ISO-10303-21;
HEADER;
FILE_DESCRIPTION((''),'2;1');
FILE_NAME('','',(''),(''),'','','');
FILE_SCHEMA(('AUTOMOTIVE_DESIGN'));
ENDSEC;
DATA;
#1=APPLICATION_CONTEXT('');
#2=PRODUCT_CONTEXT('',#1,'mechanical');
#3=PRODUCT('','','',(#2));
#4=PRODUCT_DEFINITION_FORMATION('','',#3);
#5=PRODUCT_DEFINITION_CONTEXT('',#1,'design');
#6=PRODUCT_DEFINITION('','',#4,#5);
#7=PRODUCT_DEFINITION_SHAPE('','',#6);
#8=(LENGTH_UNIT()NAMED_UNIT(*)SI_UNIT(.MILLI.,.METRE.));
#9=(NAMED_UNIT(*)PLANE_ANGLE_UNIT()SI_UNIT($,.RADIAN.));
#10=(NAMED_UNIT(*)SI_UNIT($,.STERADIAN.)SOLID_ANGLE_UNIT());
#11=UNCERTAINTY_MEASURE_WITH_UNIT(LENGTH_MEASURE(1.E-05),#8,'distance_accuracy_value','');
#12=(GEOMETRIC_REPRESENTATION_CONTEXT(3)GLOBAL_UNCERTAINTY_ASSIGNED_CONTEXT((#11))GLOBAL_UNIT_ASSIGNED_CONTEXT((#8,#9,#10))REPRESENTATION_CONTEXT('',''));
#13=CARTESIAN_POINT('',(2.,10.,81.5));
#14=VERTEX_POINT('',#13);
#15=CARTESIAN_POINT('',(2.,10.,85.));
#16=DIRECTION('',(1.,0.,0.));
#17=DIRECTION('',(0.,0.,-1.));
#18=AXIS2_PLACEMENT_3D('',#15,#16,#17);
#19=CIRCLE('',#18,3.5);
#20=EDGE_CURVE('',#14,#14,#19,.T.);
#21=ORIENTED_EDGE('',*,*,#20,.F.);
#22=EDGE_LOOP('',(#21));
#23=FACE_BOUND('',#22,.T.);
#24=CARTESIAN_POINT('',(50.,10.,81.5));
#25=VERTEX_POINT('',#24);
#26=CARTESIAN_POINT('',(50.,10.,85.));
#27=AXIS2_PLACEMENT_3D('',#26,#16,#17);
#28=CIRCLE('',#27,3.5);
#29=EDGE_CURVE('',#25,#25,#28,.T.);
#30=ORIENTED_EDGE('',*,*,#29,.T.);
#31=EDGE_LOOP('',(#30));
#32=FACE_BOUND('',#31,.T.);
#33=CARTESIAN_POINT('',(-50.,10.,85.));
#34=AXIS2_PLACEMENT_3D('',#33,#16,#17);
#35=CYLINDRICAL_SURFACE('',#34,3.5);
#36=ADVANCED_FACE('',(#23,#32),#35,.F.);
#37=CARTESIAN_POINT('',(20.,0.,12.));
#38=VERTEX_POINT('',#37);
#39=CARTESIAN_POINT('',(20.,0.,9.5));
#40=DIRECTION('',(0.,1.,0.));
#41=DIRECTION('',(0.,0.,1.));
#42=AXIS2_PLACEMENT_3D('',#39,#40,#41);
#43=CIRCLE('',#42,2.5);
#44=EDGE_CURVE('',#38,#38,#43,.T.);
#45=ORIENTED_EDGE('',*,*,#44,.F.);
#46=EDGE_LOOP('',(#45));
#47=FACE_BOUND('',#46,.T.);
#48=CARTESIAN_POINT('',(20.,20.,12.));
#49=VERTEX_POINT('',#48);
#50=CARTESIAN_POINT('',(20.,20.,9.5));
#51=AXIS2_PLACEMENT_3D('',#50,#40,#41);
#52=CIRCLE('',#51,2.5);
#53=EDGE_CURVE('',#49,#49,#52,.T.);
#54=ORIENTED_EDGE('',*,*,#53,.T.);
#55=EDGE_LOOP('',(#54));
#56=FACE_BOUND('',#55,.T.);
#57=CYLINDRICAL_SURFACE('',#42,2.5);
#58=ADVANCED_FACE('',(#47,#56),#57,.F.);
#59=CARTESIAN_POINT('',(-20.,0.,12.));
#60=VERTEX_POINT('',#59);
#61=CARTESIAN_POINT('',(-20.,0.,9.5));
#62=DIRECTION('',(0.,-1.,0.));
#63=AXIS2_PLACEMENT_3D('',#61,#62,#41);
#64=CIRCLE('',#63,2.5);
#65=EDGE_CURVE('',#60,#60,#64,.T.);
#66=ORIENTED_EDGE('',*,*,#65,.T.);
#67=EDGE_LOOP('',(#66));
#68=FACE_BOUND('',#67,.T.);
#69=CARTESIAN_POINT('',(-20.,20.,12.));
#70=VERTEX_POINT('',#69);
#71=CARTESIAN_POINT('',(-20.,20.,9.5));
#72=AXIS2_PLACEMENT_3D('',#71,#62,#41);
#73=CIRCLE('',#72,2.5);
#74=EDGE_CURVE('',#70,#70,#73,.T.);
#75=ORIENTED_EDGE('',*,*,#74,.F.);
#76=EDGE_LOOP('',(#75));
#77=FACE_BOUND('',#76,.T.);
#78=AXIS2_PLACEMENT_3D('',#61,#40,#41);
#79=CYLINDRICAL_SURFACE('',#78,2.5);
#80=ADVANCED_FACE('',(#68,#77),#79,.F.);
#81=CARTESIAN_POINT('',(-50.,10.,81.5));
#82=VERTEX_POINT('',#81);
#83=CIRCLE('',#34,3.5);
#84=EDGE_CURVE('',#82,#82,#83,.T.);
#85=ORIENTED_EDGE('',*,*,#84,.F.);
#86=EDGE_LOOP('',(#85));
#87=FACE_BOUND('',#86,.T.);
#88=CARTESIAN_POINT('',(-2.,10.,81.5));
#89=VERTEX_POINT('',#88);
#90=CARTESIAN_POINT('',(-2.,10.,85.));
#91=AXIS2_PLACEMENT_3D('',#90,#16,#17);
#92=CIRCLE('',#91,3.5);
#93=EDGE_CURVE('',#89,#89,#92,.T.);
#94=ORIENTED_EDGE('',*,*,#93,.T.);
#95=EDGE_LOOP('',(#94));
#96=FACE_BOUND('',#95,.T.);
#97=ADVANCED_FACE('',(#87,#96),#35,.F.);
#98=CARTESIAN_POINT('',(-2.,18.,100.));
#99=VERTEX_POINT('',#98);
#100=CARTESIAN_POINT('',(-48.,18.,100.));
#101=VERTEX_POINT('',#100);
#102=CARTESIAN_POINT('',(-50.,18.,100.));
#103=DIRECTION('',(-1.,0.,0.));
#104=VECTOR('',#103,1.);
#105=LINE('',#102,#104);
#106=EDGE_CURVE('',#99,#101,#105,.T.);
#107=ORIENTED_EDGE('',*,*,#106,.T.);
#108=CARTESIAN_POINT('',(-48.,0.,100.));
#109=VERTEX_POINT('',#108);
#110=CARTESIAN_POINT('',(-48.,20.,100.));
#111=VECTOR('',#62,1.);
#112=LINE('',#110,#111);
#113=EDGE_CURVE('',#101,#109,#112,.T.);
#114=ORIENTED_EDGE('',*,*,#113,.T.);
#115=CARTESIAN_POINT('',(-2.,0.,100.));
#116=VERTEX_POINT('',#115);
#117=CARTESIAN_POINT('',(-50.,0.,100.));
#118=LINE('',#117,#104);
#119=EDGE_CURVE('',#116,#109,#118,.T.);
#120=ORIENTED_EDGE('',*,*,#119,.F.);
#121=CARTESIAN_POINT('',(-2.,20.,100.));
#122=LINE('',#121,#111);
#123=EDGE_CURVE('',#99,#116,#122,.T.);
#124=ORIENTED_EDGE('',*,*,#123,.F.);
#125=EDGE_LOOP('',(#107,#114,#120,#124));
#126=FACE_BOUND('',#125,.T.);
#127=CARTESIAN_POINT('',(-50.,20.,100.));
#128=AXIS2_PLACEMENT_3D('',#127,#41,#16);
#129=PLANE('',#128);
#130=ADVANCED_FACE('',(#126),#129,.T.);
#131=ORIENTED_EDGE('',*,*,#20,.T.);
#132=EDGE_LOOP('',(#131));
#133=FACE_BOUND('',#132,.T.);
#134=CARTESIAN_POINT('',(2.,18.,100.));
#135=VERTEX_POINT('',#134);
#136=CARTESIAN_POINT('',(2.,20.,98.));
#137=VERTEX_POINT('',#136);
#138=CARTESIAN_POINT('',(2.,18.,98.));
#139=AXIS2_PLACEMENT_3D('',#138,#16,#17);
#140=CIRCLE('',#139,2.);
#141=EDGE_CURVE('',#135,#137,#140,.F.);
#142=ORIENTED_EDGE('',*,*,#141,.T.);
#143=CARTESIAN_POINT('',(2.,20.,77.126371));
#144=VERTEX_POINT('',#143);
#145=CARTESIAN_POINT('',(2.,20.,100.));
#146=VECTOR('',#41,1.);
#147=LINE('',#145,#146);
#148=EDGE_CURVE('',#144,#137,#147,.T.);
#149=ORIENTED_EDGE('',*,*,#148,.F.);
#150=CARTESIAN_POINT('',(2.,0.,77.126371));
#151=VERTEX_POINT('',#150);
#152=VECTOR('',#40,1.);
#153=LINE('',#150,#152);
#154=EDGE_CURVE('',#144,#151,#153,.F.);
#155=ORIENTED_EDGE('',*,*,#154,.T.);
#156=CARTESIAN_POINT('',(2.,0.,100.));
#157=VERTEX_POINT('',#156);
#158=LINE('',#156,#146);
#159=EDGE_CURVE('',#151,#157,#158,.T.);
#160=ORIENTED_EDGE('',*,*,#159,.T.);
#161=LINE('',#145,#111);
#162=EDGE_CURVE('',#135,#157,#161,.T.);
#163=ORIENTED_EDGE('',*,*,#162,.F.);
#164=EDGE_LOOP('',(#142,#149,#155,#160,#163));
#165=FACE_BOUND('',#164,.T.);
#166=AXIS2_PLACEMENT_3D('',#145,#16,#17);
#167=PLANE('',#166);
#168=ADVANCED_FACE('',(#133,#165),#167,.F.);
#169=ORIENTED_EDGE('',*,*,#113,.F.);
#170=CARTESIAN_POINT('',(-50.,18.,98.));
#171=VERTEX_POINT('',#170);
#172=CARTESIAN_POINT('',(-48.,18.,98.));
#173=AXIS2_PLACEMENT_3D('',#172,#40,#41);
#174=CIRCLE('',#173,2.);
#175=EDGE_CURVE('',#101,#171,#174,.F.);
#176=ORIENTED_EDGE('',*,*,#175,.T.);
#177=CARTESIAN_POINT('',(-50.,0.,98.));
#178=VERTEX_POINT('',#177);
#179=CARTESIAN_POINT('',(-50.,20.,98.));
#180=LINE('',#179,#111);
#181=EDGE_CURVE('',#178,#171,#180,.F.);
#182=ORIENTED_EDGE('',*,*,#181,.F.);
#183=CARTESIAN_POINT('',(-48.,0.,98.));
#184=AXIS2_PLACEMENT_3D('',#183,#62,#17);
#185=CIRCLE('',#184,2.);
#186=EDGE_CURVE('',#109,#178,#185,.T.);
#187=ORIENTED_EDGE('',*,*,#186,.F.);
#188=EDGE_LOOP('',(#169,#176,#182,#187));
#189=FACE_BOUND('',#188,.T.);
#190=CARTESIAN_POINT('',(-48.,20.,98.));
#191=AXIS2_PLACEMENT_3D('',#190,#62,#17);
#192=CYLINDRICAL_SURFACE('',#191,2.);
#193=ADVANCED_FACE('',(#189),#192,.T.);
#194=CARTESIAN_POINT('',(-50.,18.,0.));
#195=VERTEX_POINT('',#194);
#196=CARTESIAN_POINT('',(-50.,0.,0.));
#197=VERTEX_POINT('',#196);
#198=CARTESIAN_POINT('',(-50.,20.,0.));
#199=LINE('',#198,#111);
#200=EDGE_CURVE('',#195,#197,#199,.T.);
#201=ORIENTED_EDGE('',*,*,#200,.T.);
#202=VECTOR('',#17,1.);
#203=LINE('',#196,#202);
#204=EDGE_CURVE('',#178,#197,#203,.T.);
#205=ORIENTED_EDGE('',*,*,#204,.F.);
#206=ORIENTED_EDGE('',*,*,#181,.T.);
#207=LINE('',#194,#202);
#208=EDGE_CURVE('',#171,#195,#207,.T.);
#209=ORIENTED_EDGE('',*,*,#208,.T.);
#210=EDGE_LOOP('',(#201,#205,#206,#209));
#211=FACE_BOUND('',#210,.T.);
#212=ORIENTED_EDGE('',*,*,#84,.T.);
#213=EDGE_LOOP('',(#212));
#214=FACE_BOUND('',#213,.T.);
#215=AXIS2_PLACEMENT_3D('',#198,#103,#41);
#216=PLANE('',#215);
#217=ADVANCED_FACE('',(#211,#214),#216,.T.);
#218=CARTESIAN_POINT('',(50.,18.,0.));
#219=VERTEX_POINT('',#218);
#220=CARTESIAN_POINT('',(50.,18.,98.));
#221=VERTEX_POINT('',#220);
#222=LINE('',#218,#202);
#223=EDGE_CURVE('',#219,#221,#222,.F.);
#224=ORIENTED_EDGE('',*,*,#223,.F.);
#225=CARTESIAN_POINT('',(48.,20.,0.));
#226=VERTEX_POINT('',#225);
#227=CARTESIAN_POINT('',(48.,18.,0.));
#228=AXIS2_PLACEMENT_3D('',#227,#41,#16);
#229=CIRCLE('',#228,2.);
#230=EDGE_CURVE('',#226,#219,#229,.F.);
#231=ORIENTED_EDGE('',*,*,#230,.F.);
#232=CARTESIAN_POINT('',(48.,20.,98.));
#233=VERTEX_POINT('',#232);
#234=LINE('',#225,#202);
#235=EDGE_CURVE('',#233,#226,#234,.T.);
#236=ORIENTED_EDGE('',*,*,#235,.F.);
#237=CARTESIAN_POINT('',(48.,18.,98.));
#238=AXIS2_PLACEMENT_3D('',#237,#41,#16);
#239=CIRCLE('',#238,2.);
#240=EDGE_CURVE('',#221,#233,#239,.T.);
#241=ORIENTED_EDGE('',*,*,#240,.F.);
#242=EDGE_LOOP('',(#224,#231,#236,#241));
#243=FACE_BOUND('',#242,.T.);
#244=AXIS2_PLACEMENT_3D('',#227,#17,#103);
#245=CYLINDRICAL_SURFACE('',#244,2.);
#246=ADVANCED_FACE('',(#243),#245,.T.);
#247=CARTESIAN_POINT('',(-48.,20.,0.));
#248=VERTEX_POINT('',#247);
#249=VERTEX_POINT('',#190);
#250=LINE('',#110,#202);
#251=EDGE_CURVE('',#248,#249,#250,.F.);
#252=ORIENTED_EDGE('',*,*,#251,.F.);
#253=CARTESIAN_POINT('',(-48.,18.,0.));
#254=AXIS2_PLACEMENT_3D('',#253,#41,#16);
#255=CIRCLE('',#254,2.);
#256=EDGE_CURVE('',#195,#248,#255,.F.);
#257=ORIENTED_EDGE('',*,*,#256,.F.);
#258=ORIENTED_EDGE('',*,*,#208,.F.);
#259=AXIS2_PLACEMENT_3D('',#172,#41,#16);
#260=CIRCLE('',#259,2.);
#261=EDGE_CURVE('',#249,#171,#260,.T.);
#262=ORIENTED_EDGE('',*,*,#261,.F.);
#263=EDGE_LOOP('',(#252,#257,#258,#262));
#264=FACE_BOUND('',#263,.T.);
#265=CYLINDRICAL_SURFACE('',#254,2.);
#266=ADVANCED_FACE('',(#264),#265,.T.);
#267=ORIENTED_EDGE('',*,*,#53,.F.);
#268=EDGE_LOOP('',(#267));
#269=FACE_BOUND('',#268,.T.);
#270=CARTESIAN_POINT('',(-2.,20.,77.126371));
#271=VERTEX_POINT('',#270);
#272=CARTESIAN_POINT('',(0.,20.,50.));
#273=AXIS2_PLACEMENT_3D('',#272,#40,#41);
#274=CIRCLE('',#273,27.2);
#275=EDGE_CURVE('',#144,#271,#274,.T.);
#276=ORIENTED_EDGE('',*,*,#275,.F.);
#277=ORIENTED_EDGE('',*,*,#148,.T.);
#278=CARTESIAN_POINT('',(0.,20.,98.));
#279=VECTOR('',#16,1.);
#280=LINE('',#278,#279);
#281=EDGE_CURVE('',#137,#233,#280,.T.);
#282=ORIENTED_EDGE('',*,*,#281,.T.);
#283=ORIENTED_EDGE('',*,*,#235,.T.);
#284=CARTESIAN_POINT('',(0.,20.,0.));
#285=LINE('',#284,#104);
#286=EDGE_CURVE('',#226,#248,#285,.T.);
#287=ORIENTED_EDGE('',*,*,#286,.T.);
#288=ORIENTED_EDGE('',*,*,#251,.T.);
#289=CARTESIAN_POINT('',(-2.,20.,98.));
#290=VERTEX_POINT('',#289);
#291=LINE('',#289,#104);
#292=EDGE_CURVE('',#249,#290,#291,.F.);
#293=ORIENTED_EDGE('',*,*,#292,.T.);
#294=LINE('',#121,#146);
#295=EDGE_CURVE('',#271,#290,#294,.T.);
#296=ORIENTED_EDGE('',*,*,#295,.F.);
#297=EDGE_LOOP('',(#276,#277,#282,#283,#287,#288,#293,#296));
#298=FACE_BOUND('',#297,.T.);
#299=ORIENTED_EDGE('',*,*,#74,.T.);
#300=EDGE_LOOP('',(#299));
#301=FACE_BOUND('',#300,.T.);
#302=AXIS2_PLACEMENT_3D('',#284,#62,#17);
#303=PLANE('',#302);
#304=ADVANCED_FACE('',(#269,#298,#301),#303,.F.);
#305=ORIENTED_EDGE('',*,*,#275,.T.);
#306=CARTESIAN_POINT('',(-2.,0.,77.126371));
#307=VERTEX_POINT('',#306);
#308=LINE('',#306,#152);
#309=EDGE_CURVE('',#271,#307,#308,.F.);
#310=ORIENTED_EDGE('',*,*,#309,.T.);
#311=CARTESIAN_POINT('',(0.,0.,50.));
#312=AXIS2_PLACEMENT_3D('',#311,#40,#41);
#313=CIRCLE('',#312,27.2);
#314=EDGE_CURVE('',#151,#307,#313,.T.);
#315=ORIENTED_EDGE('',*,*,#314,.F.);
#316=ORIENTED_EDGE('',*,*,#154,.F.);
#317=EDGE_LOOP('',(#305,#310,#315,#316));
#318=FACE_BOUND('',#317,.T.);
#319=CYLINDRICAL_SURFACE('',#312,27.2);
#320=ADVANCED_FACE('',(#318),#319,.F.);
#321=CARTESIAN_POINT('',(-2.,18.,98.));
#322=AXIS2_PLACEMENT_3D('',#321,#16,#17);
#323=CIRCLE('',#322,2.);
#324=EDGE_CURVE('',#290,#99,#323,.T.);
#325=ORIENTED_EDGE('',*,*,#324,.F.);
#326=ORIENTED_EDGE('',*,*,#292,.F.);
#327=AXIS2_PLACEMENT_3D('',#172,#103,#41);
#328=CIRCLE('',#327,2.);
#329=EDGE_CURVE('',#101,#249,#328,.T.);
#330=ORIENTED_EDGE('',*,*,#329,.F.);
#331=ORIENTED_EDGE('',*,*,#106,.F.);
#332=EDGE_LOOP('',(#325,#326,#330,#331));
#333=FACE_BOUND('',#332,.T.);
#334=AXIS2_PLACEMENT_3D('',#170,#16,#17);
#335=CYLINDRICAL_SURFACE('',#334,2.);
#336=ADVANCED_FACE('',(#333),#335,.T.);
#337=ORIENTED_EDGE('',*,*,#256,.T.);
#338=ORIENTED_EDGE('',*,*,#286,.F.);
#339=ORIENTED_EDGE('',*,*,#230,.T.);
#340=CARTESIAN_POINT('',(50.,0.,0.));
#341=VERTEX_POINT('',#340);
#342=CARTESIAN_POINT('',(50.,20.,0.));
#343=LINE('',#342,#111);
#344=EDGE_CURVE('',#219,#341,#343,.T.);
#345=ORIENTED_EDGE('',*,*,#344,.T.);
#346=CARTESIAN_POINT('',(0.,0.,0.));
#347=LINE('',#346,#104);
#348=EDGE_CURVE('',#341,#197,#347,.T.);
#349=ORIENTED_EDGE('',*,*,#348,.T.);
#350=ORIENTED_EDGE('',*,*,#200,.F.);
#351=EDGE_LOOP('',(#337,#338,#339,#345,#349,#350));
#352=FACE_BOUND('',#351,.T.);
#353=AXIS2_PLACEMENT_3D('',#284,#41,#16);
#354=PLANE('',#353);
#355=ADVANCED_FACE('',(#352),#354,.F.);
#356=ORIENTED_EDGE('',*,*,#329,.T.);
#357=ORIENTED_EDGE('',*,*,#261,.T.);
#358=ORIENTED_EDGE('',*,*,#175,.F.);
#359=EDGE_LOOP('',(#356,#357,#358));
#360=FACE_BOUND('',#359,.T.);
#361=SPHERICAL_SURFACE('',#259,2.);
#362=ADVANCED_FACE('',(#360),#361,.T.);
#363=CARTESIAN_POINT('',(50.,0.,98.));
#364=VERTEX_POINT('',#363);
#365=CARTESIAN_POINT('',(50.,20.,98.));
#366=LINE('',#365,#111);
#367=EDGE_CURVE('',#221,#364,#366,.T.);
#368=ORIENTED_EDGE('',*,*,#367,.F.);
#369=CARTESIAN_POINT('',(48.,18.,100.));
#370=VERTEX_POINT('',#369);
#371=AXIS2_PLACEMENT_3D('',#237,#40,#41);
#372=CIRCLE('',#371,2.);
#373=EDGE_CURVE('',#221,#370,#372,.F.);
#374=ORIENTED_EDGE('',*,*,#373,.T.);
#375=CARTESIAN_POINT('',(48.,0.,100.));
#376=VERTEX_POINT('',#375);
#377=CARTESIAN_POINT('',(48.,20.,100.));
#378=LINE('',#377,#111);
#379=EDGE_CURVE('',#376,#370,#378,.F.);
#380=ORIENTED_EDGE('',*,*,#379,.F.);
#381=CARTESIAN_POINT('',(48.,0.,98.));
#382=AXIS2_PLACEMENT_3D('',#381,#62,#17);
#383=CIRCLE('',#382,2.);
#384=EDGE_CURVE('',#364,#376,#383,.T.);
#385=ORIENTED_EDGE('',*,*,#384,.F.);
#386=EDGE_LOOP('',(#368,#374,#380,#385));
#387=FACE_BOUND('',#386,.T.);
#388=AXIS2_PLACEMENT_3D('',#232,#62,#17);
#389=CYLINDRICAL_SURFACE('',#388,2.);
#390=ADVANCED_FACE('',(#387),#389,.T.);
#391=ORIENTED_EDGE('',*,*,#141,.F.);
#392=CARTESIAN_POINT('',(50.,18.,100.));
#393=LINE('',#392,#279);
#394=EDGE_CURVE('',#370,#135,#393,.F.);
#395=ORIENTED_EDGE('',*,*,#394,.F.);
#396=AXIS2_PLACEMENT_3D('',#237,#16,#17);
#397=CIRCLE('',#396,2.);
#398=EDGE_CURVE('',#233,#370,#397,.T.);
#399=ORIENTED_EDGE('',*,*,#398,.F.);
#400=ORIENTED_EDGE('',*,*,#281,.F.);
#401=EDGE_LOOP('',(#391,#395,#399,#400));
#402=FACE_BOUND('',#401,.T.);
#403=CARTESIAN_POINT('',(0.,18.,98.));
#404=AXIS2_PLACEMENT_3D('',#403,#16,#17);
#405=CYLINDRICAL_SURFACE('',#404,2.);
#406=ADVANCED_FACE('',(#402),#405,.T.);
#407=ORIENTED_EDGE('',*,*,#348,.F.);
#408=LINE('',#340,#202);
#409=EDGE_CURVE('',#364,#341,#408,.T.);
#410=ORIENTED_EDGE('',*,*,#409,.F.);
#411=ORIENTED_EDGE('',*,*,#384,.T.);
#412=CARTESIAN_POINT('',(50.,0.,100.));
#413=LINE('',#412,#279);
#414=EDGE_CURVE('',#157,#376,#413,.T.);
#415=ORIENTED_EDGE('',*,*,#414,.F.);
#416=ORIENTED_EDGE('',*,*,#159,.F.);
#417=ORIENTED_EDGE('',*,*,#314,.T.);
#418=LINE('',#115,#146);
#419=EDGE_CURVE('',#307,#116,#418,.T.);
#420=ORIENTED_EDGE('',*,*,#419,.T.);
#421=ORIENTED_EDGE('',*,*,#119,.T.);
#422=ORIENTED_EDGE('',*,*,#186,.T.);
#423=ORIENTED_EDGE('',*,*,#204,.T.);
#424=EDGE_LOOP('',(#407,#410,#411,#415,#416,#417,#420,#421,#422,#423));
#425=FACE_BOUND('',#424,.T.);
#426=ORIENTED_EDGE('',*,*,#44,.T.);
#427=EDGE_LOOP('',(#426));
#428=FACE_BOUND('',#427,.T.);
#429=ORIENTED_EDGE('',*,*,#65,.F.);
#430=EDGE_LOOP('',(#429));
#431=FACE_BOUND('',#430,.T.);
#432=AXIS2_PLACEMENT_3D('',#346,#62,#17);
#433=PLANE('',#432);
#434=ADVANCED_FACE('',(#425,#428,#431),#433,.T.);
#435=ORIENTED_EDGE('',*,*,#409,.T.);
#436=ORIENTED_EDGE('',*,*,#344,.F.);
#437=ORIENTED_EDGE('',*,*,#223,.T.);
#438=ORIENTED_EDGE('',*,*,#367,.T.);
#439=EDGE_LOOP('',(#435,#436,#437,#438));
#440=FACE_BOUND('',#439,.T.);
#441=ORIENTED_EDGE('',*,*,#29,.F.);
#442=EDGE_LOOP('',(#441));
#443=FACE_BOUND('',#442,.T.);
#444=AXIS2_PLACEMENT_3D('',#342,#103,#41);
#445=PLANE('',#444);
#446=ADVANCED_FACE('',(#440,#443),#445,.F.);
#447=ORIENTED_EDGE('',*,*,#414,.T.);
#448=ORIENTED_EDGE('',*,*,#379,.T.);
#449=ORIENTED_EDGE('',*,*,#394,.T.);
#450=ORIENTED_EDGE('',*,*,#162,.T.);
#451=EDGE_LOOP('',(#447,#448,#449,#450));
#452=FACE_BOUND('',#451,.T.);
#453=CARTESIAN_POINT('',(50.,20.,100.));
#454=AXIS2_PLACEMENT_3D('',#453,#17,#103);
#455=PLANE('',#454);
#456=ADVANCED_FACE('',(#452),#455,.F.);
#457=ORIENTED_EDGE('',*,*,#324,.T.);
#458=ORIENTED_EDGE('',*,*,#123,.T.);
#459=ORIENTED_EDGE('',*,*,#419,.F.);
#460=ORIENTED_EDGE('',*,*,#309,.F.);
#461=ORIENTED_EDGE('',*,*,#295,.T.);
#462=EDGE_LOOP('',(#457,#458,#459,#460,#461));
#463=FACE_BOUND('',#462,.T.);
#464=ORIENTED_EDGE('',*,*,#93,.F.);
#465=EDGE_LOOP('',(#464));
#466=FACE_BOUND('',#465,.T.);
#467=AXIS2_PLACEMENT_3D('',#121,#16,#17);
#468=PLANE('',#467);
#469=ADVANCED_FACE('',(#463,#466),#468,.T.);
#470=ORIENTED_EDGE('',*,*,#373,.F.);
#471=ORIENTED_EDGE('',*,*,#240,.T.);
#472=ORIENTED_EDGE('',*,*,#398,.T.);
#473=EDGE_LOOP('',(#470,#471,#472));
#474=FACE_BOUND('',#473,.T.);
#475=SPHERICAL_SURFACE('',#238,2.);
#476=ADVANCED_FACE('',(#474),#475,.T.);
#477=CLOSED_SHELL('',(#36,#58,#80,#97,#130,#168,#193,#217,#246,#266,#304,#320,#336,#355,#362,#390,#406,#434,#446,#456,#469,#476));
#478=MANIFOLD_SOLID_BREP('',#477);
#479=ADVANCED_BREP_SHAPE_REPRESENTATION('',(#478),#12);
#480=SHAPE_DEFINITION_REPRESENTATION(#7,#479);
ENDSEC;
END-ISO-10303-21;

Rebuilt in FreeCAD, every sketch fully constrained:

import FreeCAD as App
import Part
import Sketcher
Q = App.Units.Quantity


def edges_at(feature, points):
    """Names of the edges that pass closest to the given points."""
    edges = feature.Shape.Edges
    near = lambda p: min(range(len(edges)), key=lambda i: edges[i].distToShape(Part.Vertex(*p))[0])
    return sorted({f"Edge{near(p) + 1}" for p in points})


def add_polygon(sketch, points):
    """Adds a closed chain of lines whose ends are joined by coincident constraints."""
    first, n = sketch.GeometryCount, len(points)
    for a, b in zip(points, points[1:] + points[:1]):
        sketch.addGeometry(Part.LineSegment(App.Vector(*a, 0), App.Vector(*b, 0)), False)
    for i in range(n):
        sketch.addConstraint(Sketcher.Constraint("Coincident", first + i, 2, first + (i + 1) % n, 1))

doc = App.newDocument("Part")
body = doc.addObject("PartDesign::Body", "Body")

sketch1 = doc.addObject("Sketcher::SketchObject", "Sketch")
body.addObject(sketch1)
sketch1.AttachmentSupport = (doc.XZ_Plane, [""])
sketch1.MapMode = "FlatFace"
add_polygon(sketch1, [(50, 0), (0, 0), (0, 50), (2, 50), (2, 100), (50, 100)])
sketch1.addConstraint(Sketcher.Constraint("Horizontal", 0))
sketch1.addConstraint(Sketcher.Constraint("Vertical", 1))
sketch1.addConstraint(Sketcher.Constraint("Horizontal", 2))
sketch1.addConstraint(Sketcher.Constraint("Vertical", 3))
sketch1.addConstraint(Sketcher.Constraint("Horizontal", 4))
sketch1.addConstraint(Sketcher.Constraint("Vertical", 5))
sketch1.addConstraint(Sketcher.Constraint("Coincident", 0, 2, -1, 1))
sketch1.addConstraint(Sketcher.Constraint("Equal", 0, 1))
sketch1.addConstraint(Sketcher.Constraint("Equal", 1, 3))
sketch1.addConstraint(Sketcher.Constraint("DistanceX", 0, 2, 0, 1, Q("50 mm")))
sketch1.addConstraint(Sketcher.Constraint("DistanceX", 2, 1, 2, 2, Q("2 mm")))
pad1 = doc.addObject("PartDesign::Pad", "Pad")
body.addObject(pad1)
pad1.Profile = sketch1
pad1.Length = 20
pad1.Reversed = True
doc.recompute()

mirrored = doc.addObject("PartDesign::Mirrored", "Mirrored")
body.addObject(mirrored)
mirrored.Originals = [pad1]
mirrored.MirrorPlane = (doc.YZ_Plane, [""])
body.Tip = mirrored

sketch2 = doc.addObject("Sketcher::SketchObject", "Sketch001")
body.addObject(sketch2)
sketch2.AttachmentSupport = (doc.XZ_Plane, [""])
sketch2.MapMode = "FlatFace"
sketch2.AttachmentOffset = App.Placement(App.Vector(0, 0, -20), App.Rotation())
sketch2.addGeometry(Part.Circle(App.Vector(0, 50, 0), App.Vector(0, 0, 1), 27), False)
sketch2.addConstraint(Sketcher.Constraint("PointOnObject", 0, 3, -2))
sketch2.addConstraint(Sketcher.Constraint("Diameter", 0, Q("54.4 mm")))
sketch2.addConstraint(Sketcher.Constraint("DistanceY", -1, 1, 0, 3, Q("50 mm")))
pocket1 = doc.addObject("PartDesign::Pocket", "Pocket")
body.addObject(pocket1)
pocket1.Profile = sketch2
pocket1.Length = 20
pocket1.Reversed = True

sketch3 = doc.addObject("Sketcher::SketchObject", "Sketch002")
body.addObject(sketch3)
sketch3.AttachmentSupport = (doc.XZ_Plane, [""])
sketch3.MapMode = "FlatFace"
sketch3.AttachmentOffset = App.Placement(App.Vector(0, 0, -20), App.Rotation())
sketch3.addGeometry(Part.Circle(App.Vector(20, 9.5, 0), App.Vector(0, 0, 1), 2.5), False)
sketch3.addConstraint(Sketcher.Constraint("Diameter", 0, Q("5 mm")))
sketch3.addConstraint(Sketcher.Constraint("DistanceX", -1, 1, 0, 3, Q("20 mm")))
sketch3.addConstraint(Sketcher.Constraint("DistanceY", -1, 1, 0, 3, Q("9.5 mm")))
pocket2 = doc.addObject("PartDesign::Pocket", "Pocket001")
body.addObject(pocket2)
pocket2.Profile = sketch3
pocket2.Length = 20
pocket2.Reversed = True
doc.recompute()

mirrored2 = doc.addObject("PartDesign::Mirrored", "Mirrored001")
body.addObject(mirrored2)
mirrored2.Originals = [pocket2]
mirrored2.MirrorPlane = (doc.YZ_Plane, [""])
body.Tip = mirrored2

sketch4 = doc.addObject("Sketcher::SketchObject", "Sketch003")
body.addObject(sketch4)
sketch4.AttachmentSupport = (doc.YZ_Plane, [""])
sketch4.MapMode = "FlatFace"
sketch4.AttachmentOffset = App.Placement(App.Vector(0, 0, 50), App.Rotation())
sketch4.addGeometry(Part.Circle(App.Vector(10, 85, 0), App.Vector(0, 0, 1), 3.5), False)
sketch4.addConstraint(Sketcher.Constraint("Diameter", 0, Q("7 mm")))
sketch4.addConstraint(Sketcher.Constraint("DistanceX", -1, 1, 0, 3, Q("10 mm")))
sketch4.addConstraint(Sketcher.Constraint("DistanceY", -1, 1, 0, 3, Q("85 mm")))
pocket3 = doc.addObject("PartDesign::Pocket", "Pocket002")
body.addObject(pocket3)
pocket3.Profile = sketch4
pocket3.Type = "ThroughAll"
doc.recompute()

fillet = doc.addObject("PartDesign::Fillet", "Fillet")
body.addObject(fillet)
fillet.Base = (pocket3, edges_at(pocket3, [
    (50, 10, 100),
    (26, 20, 100),
    (50, 20, 50),
    (-50, 20, 50),
    (-26, 20, 100),
    (-50, 10, 100),
]))
fillet.Radius = 2

doc.recompute()
